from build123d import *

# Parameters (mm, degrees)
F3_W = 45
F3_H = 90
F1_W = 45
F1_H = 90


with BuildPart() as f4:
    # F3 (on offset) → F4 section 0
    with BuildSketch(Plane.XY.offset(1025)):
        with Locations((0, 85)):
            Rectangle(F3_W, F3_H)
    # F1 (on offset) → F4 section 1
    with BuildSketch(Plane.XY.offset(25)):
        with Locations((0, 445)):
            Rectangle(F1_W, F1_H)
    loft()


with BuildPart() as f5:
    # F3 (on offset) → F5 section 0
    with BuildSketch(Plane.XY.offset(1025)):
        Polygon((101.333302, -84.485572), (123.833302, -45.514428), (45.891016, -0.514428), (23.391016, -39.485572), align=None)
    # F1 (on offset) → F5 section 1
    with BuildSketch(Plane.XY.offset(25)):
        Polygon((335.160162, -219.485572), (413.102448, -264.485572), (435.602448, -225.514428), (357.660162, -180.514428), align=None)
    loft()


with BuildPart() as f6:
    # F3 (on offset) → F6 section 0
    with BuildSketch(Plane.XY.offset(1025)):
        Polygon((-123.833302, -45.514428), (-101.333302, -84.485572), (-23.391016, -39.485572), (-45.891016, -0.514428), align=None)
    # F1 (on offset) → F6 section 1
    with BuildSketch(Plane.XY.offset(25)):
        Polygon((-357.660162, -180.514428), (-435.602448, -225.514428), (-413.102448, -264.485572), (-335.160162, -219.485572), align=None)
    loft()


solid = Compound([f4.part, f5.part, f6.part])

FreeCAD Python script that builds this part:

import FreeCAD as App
import Part
import Sketcher
from FreeCAD import Vector
Q = App.Units.Quantity


def add_polygon(sketch, points):
    """Adds a closed chain of lines whose ends are joined by coincident constraints."""
    first, n = sketch.GeometryCount, len(points)
    for a, b in zip(points, points[1:] + points[:1]):
        sketch.addGeometry(Part.LineSegment(App.Vector(*a, 0), App.Vector(*b, 0)), False)
    for i in range(n):
        sketch.addConstraint(Sketcher.Constraint("Coincident", first + i, 2, first + (i + 1) % n, 1))

doc = App.newDocument("Part")
body = doc.addObject("PartDesign::Body", "Body")

sketch1 = body.newObject("Sketcher::SketchObject", "Sketch")
sketch1.AttachmentSupport = (doc.getObject("XY_Plane"), [""])
sketch1.MapMode = "FlatFace"
sketch1.AttachmentOffset = App.Placement(Vector(0, 0, 1025), App.Rotation())
add_polygon(sketch1, [(-22, 130), (-22, 40), (22, 40), (22, 130)])
sketch1.addConstraint(Sketcher.Constraint("Vertical", 0))
sketch1.addConstraint(Sketcher.Constraint("Horizontal", 1))
sketch1.addConstraint(Sketcher.Constraint("Vertical", 2))
sketch1.addConstraint(Sketcher.Constraint("Horizontal", 3))
sketch1.addConstraint(Sketcher.Constraint("DistanceX", 1, 1, 1, 2, 45.0))
sketch1.addConstraint(Sketcher.Constraint("DistanceY", 0, 2, 0, 1, 90.0))
sketch1.addConstraint(Sketcher.Constraint("DistanceY", -1, 1, 0, 2, 40.0))
sketch1.addConstraint(Sketcher.Constraint("DistanceX", 0, 2, -1, 1, 22.5))

sketch2 = body.newObject("Sketcher::SketchObject", "Sketch001")
sketch2.AttachmentSupport = (doc.getObject("XY_Plane"), [""])
sketch2.MapMode = "FlatFace"
sketch2.AttachmentOffset = App.Placement(Vector(0, 0, 25), App.Rotation())
add_polygon(sketch2, [(-22, 490), (-22, 400), (22, 400), (22, 490)])
sketch2.addConstraint(Sketcher.Constraint("Vertical", 0))
sketch2.addConstraint(Sketcher.Constraint("Horizontal", 1))
sketch2.addConstraint(Sketcher.Constraint("Vertical", 2))
sketch2.addConstraint(Sketcher.Constraint("Horizontal", 3))
sketch2.addConstraint(Sketcher.Constraint("DistanceX", 1, 1, 1, 2, 45.0))
sketch2.addConstraint(Sketcher.Constraint("DistanceY", 0, 2, 0, 1, 90.0))
sketch2.addConstraint(Sketcher.Constraint("DistanceY", -1, 1, 0, 2, 400.0))
sketch2.addConstraint(Sketcher.Constraint("DistanceX", 0, 2, -1, 1, 22.5))

additiveloft = body.newObject("PartDesign::AdditiveLoft", "AdditiveLoft")
additiveloft.Profile = sketch1
additiveloft.Sections = [sketch2]
body2 = doc.addObject("PartDesign::Body", "Body001")

sketch3 = body2.newObject("Sketcher::SketchObject", "Sketch002")
sketch3.AttachmentSupport = (doc.getObject("XY_Plane001"), [""])
sketch3.MapMode = "FlatFace"
sketch3.AttachmentOffset = App.Placement(Vector(0, 0, 1025), App.Rotation())
add_polygon(sketch3, [(101, -84), (124, -46), (46, -1), (23, -39)])
sketch3.addConstraint(Sketcher.Constraint("Perpendicular", 0, 1))
sketch3.addConstraint(Sketcher.Constraint("Perpendicular", 1, 2))
sketch3.addConstraint(Sketcher.Constraint("Perpendicular", 2, 3))
sketch3.addConstraint(Sketcher.Constraint("Angle", 0, Q("60.000001 deg")))
sketch3.addConstraint(Sketcher.Constraint("Distance", 0, 45.000001))
sketch3.addConstraint(Sketcher.Constraint("Distance", 1, 90.0))
sketch3.addConstraint(Sketcher.Constraint("DistanceY", 0, 2, -1, 1, 45.514428))
sketch3.addConstraint(Sketcher.Constraint("DistanceX", -1, 1, 0, 2, 123.833302))

sketch4 = body2.newObject("Sketcher::SketchObject", "Sketch003")
sketch4.AttachmentSupport = (doc.getObject("XY_Plane001"), [""])
sketch4.MapMode = "FlatFace"
sketch4.AttachmentOffset = App.Placement(Vector(0, 0, 25), App.Rotation())
add_polygon(sketch4, [(335, -219), (413, -264), (436, -226), (358, -181)])
sketch4.addConstraint(Sketcher.Constraint("Perpendicular", 0, 1))
sketch4.addConstraint(Sketcher.Constraint("Perpendicular", 1, 2))
sketch4.addConstraint(Sketcher.Constraint("Perpendicular", 2, 3))
sketch4.addConstraint(Sketcher.Constraint("Angle", 0, Q("-30 deg")))
sketch4.addConstraint(Sketcher.Constraint("Distance", 0, 90.0))
sketch4.addConstraint(Sketcher.Constraint("Distance", 1, 45.000001))
sketch4.addConstraint(Sketcher.Constraint("DistanceX", -1, 1, 0, 2, 413.102448))
sketch4.addConstraint(Sketcher.Constraint("DistanceY", 0, 2, -1, 1, 264.485572))

additiveloft2 = body2.newObject("PartDesign::AdditiveLoft", "AdditiveLoft001")
additiveloft2.Profile = sketch3
additiveloft2.Sections = [sketch4]
body3 = doc.addObject("PartDesign::Body", "Body002")

sketch5 = body3.newObject("Sketcher::SketchObject", "Sketch004")
sketch5.AttachmentSupport = (doc.getObject("XY_Plane002"), [""])
sketch5.MapMode = "FlatFace"
sketch5.AttachmentOffset = App.Placement(Vector(0, 0, 1025), App.Rotation())
add_polygon(sketch5, [(-124, -46), (-101, -84), (-23, -39), (-46, -1)])
sketch5.addConstraint(Sketcher.Constraint("Perpendicular", 0, 1))
sketch5.addConstraint(Sketcher.Constraint("Perpendicular", 1, 2))
sketch5.addConstraint(Sketcher.Constraint("Perpendicular", 2, 3))
sketch5.addConstraint(Sketcher.Constraint("Angle", 0, Q("-60.000001 deg")))
sketch5.addConstraint(Sketcher.Constraint("Distance", 0, 45.000001))
sketch5.addConstraint(Sketcher.Constraint("Distance", 1, 90.0))
sketch5.addConstraint(Sketcher.Constraint("DistanceY", 1, 2, -1, 1, 39.485572))
sketch5.addConstraint(Sketcher.Constraint("DistanceX", 0, 2, -1, 1, 101.333302))

sketch6 = body3.newObject("Sketcher::SketchObject", "Sketch005")
sketch6.AttachmentSupport = (doc.getObject("XY_Plane002"), [""])
sketch6.MapMode = "FlatFace"
sketch6.AttachmentOffset = App.Placement(Vector(0, 0, 25), App.Rotation())
add_polygon(sketch6, [(-358, -181), (-436, -226), (-413, -264), (-335, -219)])
sketch6.addConstraint(Sketcher.Constraint("Perpendicular", 0, 1))
sketch6.addConstraint(Sketcher.Constraint("Perpendicular", 1, 2))
sketch6.addConstraint(Sketcher.Constraint("Perpendicular", 2, 3))
sketch6.addConstraint(Sketcher.Constraint("Angle", 0, Q("-150 deg")))
sketch6.addConstraint(Sketcher.Constraint("Distance", 0, 90.0))
sketch6.addConstraint(Sketcher.Constraint("Distance", 1, 45.000001))
sketch6.addConstraint(Sketcher.Constraint("DistanceX", 0, 2, -1, 1, 435.602448))
sketch6.addConstraint(Sketcher.Constraint("DistanceY", 0, 2, -1, 1, 225.514428))

additiveloft3 = body3.newObject("PartDesign::AdditiveLoft", "AdditiveLoft002")
additiveloft3.Profile = sketch5
additiveloft3.Sections = [sketch6]

doc.recompute()
